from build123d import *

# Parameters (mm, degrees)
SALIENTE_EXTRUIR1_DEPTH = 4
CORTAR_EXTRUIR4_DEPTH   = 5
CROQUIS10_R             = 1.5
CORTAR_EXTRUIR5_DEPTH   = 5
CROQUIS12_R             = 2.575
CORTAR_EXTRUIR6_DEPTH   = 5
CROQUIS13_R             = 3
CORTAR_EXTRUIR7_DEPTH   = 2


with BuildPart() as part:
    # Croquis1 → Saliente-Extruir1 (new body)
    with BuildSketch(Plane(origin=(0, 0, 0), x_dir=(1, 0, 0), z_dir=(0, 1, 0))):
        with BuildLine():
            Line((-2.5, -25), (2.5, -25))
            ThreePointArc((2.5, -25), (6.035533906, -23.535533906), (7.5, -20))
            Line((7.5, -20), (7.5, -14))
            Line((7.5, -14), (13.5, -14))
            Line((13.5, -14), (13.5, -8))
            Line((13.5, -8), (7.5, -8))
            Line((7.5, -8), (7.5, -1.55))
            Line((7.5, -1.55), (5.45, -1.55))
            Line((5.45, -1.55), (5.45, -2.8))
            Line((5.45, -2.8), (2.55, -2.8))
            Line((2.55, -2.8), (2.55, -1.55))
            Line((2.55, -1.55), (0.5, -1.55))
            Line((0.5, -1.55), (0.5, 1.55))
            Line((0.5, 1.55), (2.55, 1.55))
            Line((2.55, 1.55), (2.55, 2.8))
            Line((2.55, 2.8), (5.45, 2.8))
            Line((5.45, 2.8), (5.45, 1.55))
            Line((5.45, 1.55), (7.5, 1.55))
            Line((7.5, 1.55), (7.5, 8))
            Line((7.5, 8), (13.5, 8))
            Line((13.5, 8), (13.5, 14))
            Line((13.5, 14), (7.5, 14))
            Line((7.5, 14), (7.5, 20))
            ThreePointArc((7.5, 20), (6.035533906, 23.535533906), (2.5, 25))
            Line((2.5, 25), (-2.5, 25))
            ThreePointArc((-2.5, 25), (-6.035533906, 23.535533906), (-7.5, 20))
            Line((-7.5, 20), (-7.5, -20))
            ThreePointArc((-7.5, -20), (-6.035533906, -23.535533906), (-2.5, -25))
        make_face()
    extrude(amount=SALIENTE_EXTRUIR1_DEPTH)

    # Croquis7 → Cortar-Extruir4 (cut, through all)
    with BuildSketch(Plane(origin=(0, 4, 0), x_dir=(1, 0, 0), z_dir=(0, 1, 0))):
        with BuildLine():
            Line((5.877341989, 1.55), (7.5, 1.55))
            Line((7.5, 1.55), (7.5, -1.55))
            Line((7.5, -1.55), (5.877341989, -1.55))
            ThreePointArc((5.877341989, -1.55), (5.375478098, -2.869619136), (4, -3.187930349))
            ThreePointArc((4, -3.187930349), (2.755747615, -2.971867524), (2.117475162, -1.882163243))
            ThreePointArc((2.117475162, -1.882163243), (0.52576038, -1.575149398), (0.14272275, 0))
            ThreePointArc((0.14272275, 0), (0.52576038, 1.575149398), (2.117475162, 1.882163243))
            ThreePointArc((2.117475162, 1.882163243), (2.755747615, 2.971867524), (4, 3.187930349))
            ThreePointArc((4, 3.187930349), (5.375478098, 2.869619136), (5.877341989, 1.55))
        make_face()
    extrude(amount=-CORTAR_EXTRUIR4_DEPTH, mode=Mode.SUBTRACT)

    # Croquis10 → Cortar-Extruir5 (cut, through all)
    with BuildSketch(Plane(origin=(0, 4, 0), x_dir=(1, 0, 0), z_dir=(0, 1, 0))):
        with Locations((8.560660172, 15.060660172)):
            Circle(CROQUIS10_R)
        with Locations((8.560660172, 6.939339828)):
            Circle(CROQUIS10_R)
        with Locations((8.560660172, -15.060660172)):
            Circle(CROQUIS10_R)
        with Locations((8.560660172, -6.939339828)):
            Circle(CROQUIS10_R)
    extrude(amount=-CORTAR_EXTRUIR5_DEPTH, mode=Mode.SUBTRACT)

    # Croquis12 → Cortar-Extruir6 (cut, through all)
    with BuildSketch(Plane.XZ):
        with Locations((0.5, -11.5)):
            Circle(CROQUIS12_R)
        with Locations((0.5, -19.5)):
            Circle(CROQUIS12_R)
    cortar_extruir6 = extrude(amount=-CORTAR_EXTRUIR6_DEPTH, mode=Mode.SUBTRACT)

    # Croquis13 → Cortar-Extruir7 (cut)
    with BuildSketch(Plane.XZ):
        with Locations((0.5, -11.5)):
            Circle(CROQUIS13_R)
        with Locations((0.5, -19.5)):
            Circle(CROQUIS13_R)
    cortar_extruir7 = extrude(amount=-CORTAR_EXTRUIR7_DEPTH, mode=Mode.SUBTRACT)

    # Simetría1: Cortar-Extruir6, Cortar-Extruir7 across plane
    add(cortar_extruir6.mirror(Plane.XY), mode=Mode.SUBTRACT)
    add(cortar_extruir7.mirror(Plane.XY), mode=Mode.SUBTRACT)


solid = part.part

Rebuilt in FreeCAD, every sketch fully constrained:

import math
import FreeCAD as App
import Part
import Sketcher

doc = App.newDocument("Part")
params = doc.addObject("Spreadsheet::Sheet", "Params")
for row, (alias, value) in enumerate([
    ("sketch1_radius", "5 mm"),
    ("sketch1_width", "5 mm"),
    ("sketch1_width2", "6 mm"),
    ("sketch1_height", "40 mm"),
    ("sketch1_width3", "2.9 mm"),
    ("pad1_length", "4 mm"),
    ("sketch2_radius", "1.5 mm"),
    ("sketch2_height", "3.1 mm"),
    ("sketch3_diameter", "3 mm"),
    ("sketch4_diameter", "5.15 mm"),
    ("sketch5_diameter", "6 mm"),
    ("pocket4_length", "2 mm"),
], start=1):
    params.set(f"A{row}", alias)
    params.set(f"B{row}", "=" + value)
    params.setAlias(f"B{row}", alias)

body = doc.addObject("PartDesign::Body", "Body")

# Sketch on XZ plane
sketch1 = body.newObject("Sketcher::SketchObject", "Sketch")
sketch1.AttachmentSupport = (doc.getObject("XZ_Plane"), [""])
sketch1.MapMode = "FlatFace"
sketch1.addGeometry(Part.LineSegment(App.Vector(-2.5, 25, 0), App.Vector(2.5, 25, 0)), False)
sketch1.addGeometry(Part.ArcOfCircle(Part.Circle(App.Vector(2.5, 20, 0), App.Vector(0, 0, 1), 5), math.radians(0), math.radians(90)), False)
sketch1.addGeometry(Part.LineSegment(App.Vector(7.5, 20, 0), App.Vector(7.5, 14, 0)), False)
sketch1.addGeometry(Part.LineSegment(App.Vector(7.5, 14, 0), App.Vector(13.5, 14, 0)), False)
sketch1.addGeometry(Part.LineSegment(App.Vector(13.5, 14, 0), App.Vector(13.5, 8, 0)), False)
sketch1.addGeometry(Part.LineSegment(App.Vector(13.5, 8, 0), App.Vector(7.5, 8, 0)), False)
sketch1.addGeometry(Part.LineSegment(App.Vector(7.5, 8, 0), App.Vector(7.5, 1.55, 0)), False)
sketch1.addGeometry(Part.LineSegment(App.Vector(7.5, 1.55, 0), App.Vector(5.45, 1.55, 0)), False)
sketch1.addGeometry(Part.LineSegment(App.Vector(5.45, 1.55, 0), App.Vector(5.45, 2.8, 0)), False)
sketch1.addGeometry(Part.LineSegment(App.Vector(5.45, 2.8, 0), App.Vector(2.55, 2.8, 0)), False)
sketch1.addGeometry(Part.LineSegment(App.Vector(2.55, 2.8, 0), App.Vector(2.55, 1.55, 0)), False)
sketch1.addGeometry(Part.LineSegment(App.Vector(2.55, 1.55, 0), App.Vector(0.5, 1.55, 0)), False)
sketch1.addGeometry(Part.LineSegment(App.Vector(0.5, 1.55, 0), App.Vector(0.5, -1.55, 0)), False)
sketch1.addGeometry(Part.LineSegment(App.Vector(0.5, -1.55, 0), App.Vector(2.55, -1.55, 0)), False)
sketch1.addGeometry(Part.LineSegment(App.Vector(2.55, -1.55, 0), App.Vector(2.55, -2.8, 0)), False)
sketch1.addGeometry(Part.LineSegment(App.Vector(2.55, -2.8, 0), App.Vector(5.45, -2.8, 0)), False)
sketch1.addGeometry(Part.LineSegment(App.Vector(5.45, -2.8, 0), App.Vector(5.45, -1.55, 0)), False)
sketch1.addGeometry(Part.LineSegment(App.Vector(5.45, -1.55, 0), App.Vector(7.5, -1.55, 0)), False)
sketch1.addGeometry(Part.LineSegment(App.Vector(7.5, -1.55, 0), App.Vector(7.5, -8, 0)), False)
sketch1.addGeometry(Part.LineSegment(App.Vector(7.5, -8, 0), App.Vector(13.5, -8, 0)), False)
sketch1.addGeometry(Part.LineSegment(App.Vector(13.5, -8, 0), App.Vector(13.5, -14, 0)), False)
sketch1.addGeometry(Part.LineSegment(App.Vector(13.5, -14, 0), App.Vector(7.5, -14, 0)), False)
sketch1.addGeometry(Part.LineSegment(App.Vector(7.5, -14, 0), App.Vector(7.5, -20, 0)), False)
sketch1.addGeometry(Part.ArcOfCircle(Part.Circle(App.Vector(2.5, -20, 0), App.Vector(0, 0, 1), 5), math.radians(-90), math.radians(0)), False)
sketch1.addGeometry(Part.LineSegment(App.Vector(2.5, -25, 0), App.Vector(-2.5, -25, 0)), False)
sketch1.addGeometry(Part.ArcOfCircle(Part.Circle(App.Vector(-2.5, -20, 0), App.Vector(0, 0, 1), 5), math.radians(180), math.radians(270)), False)
sketch1.addGeometry(Part.LineSegment(App.Vector(-7.5, -20, 0), App.Vector(-7.5, 20, 0)), False)
sketch1.addGeometry(Part.ArcOfCircle(Part.Circle(App.Vector(-2.5, 20, 0), App.Vector(0, 0, 1), 5), math.radians(90), math.radians(180)), False)
sketch1.addConstraint(Sketcher.Constraint("Tangent", 0, 2, 1, 2))
sketch1.addConstraint(Sketcher.Constraint("Tangent", 1, 1, 2, 1))
sketch1.addConstraint(Sketcher.Constraint("Coincident", 2, 2, 3, 1))
sketch1.addConstraint(Sketcher.Constraint("Coincident", 3, 2, 4, 1))
sketch1.addConstraint(Sketcher.Constraint("Coincident", 4, 2, 5, 1))
sketch1.addConstraint(Sketcher.Constraint("Coincident", 5, 2, 6, 1))
sketch1.addConstraint(Sketcher.Constraint("Coincident", 6, 2, 7, 1))
sketch1.addConstraint(Sketcher.Constraint("Coincident", 7, 2, 8, 1))
sketch1.addConstraint(Sketcher.Constraint("Coincident", 8, 2, 9, 1))
sketch1.addConstraint(Sketcher.Constraint("Coincident", 9, 2, 10, 1))
sketch1.addConstraint(Sketcher.Constraint("Coincident", 10, 2, 11, 1))
sketch1.addConstraint(Sketcher.Constraint("Coincident", 11, 2, 12, 1))
sketch1.addConstraint(Sketcher.Constraint("Coincident", 12, 2, 13, 1))
sketch1.addConstraint(Sketcher.Constraint("Coincident", 13, 2, 14, 1))
sketch1.addConstraint(Sketcher.Constraint("Coincident", 14, 2, 15, 1))
sketch1.addConstraint(Sketcher.Constraint("Coincident", 15, 2, 16, 1))
sketch1.addConstraint(Sketcher.Constraint("Coincident", 16, 2, 17, 1))
sketch1.addConstraint(Sketcher.Constraint("Coincident", 17, 2, 18, 1))
sketch1.addConstraint(Sketcher.Constraint("Coincident", 18, 2, 19, 1))
sketch1.addConstraint(Sketcher.Constraint("Coincident", 19, 2, 20, 1))
sketch1.addConstraint(Sketcher.Constraint("Coincident", 20, 2, 21, 1))
sketch1.addConstraint(Sketcher.Constraint("Coincident", 21, 2, 22, 1))
sketch1.addConstraint(Sketcher.Constraint("Tangent", 22, 2, 23, 2))
sketch1.addConstraint(Sketcher.Constraint("Tangent", 23, 1, 24, 1))
sketch1.addConstraint(Sketcher.Constraint("Tangent", 24, 2, 25, 2))
sketch1.addConstraint(Sketcher.Constraint("Tangent", 25, 1, 26, 1))
sketch1.addConstraint(Sketcher.Constraint("Tangent", 26, 2, 27, 2))
sketch1.addConstraint(Sketcher.Constraint("Tangent", 27, 1, 0, 1))
sketch1.addConstraint(Sketcher.Constraint("Horizontal", 0))
sketch1.addConstraint(Sketcher.Constraint("Vertical", 2))
sketch1.addConstraint(Sketcher.Constraint("Horizontal", 3))
sketch1.addConstraint(Sketcher.Constraint("Vertical", 4))
sketch1.addConstraint(Sketcher.Constraint("Horizontal", 5))
sketch1.addConstraint(Sketcher.Constraint("Vertical", 6))
sketch1.addConstraint(Sketcher.Constraint("Horizontal", 7))
sketch1.addConstraint(Sketcher.Constraint("Vertical", 8))
sketch1.addConstraint(Sketcher.Constraint("Horizontal", 9))
sketch1.addConstraint(Sketcher.Constraint("Vertical", 10))
sketch1.addConstraint(Sketcher.Constraint("Horizontal", 11))
sketch1.addConstraint(Sketcher.Constraint("Vertical", 12))
sketch1.addConstraint(Sketcher.Constraint("Horizontal", 13))
sketch1.addConstraint(Sketcher.Constraint("Vertical", 14))
sketch1.addConstraint(Sketcher.Constraint("Horizontal", 15))
sketch1.addConstraint(Sketcher.Constraint("Vertical", 16))
sketch1.addConstraint(Sketcher.Constraint("Horizontal", 17))
sketch1.addConstraint(Sketcher.Constraint("Vertical", 18))
sketch1.addConstraint(Sketcher.Constraint("Horizontal", 19))
sketch1.addConstraint(Sketcher.Constraint("Vertical", 20))
sketch1.addConstraint(Sketcher.Constraint("Horizontal", 21))
sketch1.addConstraint(Sketcher.Constraint("Vertical", 22))
sketch1.addConstraint(Sketcher.Constraint("Horizontal", 24))
sketch1.addConstraint(Sketcher.Constraint("Vertical", 26))
sketch1.addConstraint(Sketcher.Constraint("Equal", 1, 23))
sketch1.addConstraint(Sketcher.Constraint("Equal", 23, 25))
sketch1.addConstraint(Sketcher.Constraint("Equal", 25, 27))
sketch1.addConstraint(Sketcher.Constraint("Symmetric", 1, 3, 25, 3, -1, 1))
sketch1.addConstraint(Sketcher.Constraint("Symmetric", 10, 2, 13, 2, -1))
sketch1.addConstraint(Sketcher.Constraint("Symmetric", 8, 2, 15, 2, -1))
sketch1.addConstraint(Sketcher.Constraint("Symmetric", 6, 2, 17, 2, -1))
sketch1.addConstraint(Sketcher.Constraint("Symmetric", 4, 2, 19, 2, -1))
sketch1.addConstraint(Sketcher.Constraint("Symmetric", 2, 2, 21, 2, -1))
sketch1.addConstraint(Sketcher.Constraint("Horizontal", 7, 2, 10, 2))
sketch1.addConstraint(Sketcher.Constraint("Vertical", 2, 2, 5, 2))
sketch1.addConstraint(Sketcher.Constraint("Equal", 7, 11))
sketch1.addConstraint(Sketcher.Constraint("Equal", 21, 2))
sketch1.addConstraint(Sketcher.Constraint("Equal", 2, 4))
sketch1.addConstraint(Sketcher.Constraint("Radius", 1, 5.0))
sketch1.addConstraint(Sketcher.Constraint("DistanceX", 0, 1, 0, 2, 5.0))
sketch1.addConstraint(Sketcher.Constraint("DistanceX", 3, 1, 3, 2, 6.0))
sketch1.addConstraint(Sketcher.Constraint("DistanceY", 26, 1, 26, 2, 40.0))
sketch1.addConstraint(Sketcher.Constraint("DistanceX", 9, 2, 9, 1, 2.9))
sketch1.addConstraint(Sketcher.Constraint("DistanceY", 12, 2, 12, 1, 3.1))
sketch1.addConstraint(Sketcher.Constraint("DistanceX", 11, 2, 6, 2, 7.0))
sketch1.addConstraint(Sketcher.Constraint("DistanceY", 8, 1, 8, 2, 1.25))
sketch1.setExpression("Constraints[66]", "Params.sketch1_radius")
sketch1.setExpression("Constraints[67]", "Params.sketch1_width")
sketch1.setExpression("Constraints[68]", "Params.sketch1_width2")
sketch1.setExpression("Constraints[69]", "Params.sketch1_height")
sketch1.setExpression("Constraints[70]", "Params.sketch1_width3")
pad1 = body.newObject("PartDesign::Pad", "Pad")
pad1.Profile = sketch1
pad1.setExpression("Length", "Params.pad1_length")
pad1.Reversed = True

# Sketch on XZ plane
sketch2 = body.newObject("Sketcher::SketchObject", "Sketch001")
sketch2.AttachmentSupport = (doc.getObject("XZ_Plane"), [""])
sketch2.MapMode = "FlatFace"
sketch2.AttachmentOffset = App.Placement(App.Vector(0, 0, -4), App.Rotation())
sketch2.addGeometry(Part.LineSegment(App.Vector(7.5, -1.55, 0), App.Vector(5.877342, -1.55, 0)), False)
sketch2.addGeometry(Part.ArcOfCircle(Part.Circle(App.Vector(4.38934, -1.73934, 0), App.Vector(0, 0, 1), 1.5), math.radians(-105.043949), math.radians(7.251593)), False)
sketch2.addGeometry(Part.ArcOfCircle(Part.Circle(App.Vector(3.61066, -1.73934, 0), App.Vector(0, 0, 1), 1.5), math.radians(-174.53627), math.radians(-74.956051)), False)
sketch2.addGeometry(Part.ArcOfCircle(Part.Circle(App.Vector(1.56066, -0.48934, 0), App.Vector(0, 0, 1), 1.5), math.radians(160.960098), math.radians(291.79026)), False)
sketch2.addGeometry(Part.ArcOfCircle(Part.Circle(App.Vector(1.56066, 0.48934, 0), App.Vector(0, 0, 1), 1.5), math.radians(68.20974), math.radians(199.039902)), False)
sketch2.addGeometry(Part.ArcOfCircle(Part.Circle(App.Vector(3.61066, 1.73934, 0), App.Vector(0, 0, 1), 1.5), math.radians(74.956051), math.radians(174.53627)), False)
sketch2.addGeometry(Part.ArcOfCircle(Part.Circle(App.Vector(4.38934, 1.73934, 0), App.Vector(0, 0, 1), 1.5), math.radians(-7.251593), math.radians(105.043949)), False)
sketch2.addGeometry(Part.LineSegment(App.Vector(5.877342, 1.55, 0), App.Vector(7.5, 1.55, 0)), False)
sketch2.addGeometry(Part.LineSegment(App.Vector(7.5, 1.55, 0), App.Vector(7.5, -1.55, 0)), False)
sketch2.addConstraint(Sketcher.Constraint("Coincident", 0, 2, 1, 2))
sketch2.addConstraint(Sketcher.Constraint("Coincident", 1, 1, 2, 2))
sketch2.addConstraint(Sketcher.Constraint("Coincident", 2, 1, 3, 2))
sketch2.addConstraint(Sketcher.Constraint("Coincident", 3, 1, 4, 2))
sketch2.addConstraint(Sketcher.Constraint("Coincident", 4, 1, 5, 2))
sketch2.addConstraint(Sketcher.Constraint("Coincident", 5, 1, 6, 2))
sketch2.addConstraint(Sketcher.Constraint("Coincident", 6, 1, 7, 1))
sketch2.addConstraint(Sketcher.Constraint("Coincident", 7, 2, 8, 1))
sketch2.addConstraint(Sketcher.Constraint("Coincident", 8, 2, 0, 1))
sketch2.addConstraint(Sketcher.Constraint("Horizontal", 0))
sketch2.addConstraint(Sketcher.Constraint("Horizontal", 7))
sketch2.addConstraint(Sketcher.Constraint("Vertical", 8))
sketch2.addConstraint(Sketcher.Constraint("Equal", 1, 2))
sketch2.addConstraint(Sketcher.Constraint("Equal", 2, 3))
sketch2.addConstraint(Sketcher.Constraint("Equal", 3, 4))
sketch2.addConstraint(Sketcher.Constraint("Equal", 4, 5))
sketch2.addConstraint(Sketcher.Constraint("Equal", 5, 6))
sketch2.addConstraint(Sketcher.Constraint("Symmetric", 3, 3, 4, 3, -1))
sketch2.addConstraint(Sketcher.Constraint("Symmetric", 2, 3, 5, 3, -1))
sketch2.addConstraint(Sketcher.Constraint("Symmetric", 1, 3, 6, 3, -1))
sketch2.addConstraint(Sketcher.Constraint("Horizontal", 1, 3, 2, 3))
sketch2.addConstraint(Sketcher.Constraint("Vertical", 0, 2, 6, 1))
sketch2.addConstraint(Sketcher.Constraint("Radius", 1, 1.5))
sketch2.addConstraint(Sketcher.Constraint("DistanceY", 8, 2, 8, 1, 3.1))
sketch2.addConstraint(Sketcher.Constraint("DistanceX", -1, 1, 1, 1, 4.0))
sketch2.addConstraint(Sketcher.Constraint("DistanceX", -1, 1, 7, 2, 7.5))
sketch2.addConstraint(Sketcher.Constraint("DistanceX", 3, 3, 2, 3, 2.05))
sketch2.addConstraint(Sketcher.Constraint("DistanceY", 2, 3, 3, 3, 1.25))
sketch2.addConstraint(Sketcher.Constraint("DistanceX", 0, 2, 0, 1, 1.622658))
sketch2.addConstraint(Sketcher.Constraint("DistanceX", -1, 1, 1, 3, 4.38934))
sketch2.setExpression("Constraints[22]", "Params.sketch2_radius")
sketch2.setExpression("Constraints[23]", "Params.sketch2_height")
pocket1 = body.newObject("PartDesign::Pocket", "Pocket")
pocket1.Profile = sketch2
pocket1.Type = "ThroughAll"
pocket1.Reversed = True

# Sketch on XZ plane
sketch3 = body.newObject("Sketcher::SketchObject", "Sketch002")
sketch3.AttachmentSupport = (doc.getObject("XZ_Plane"), [""])
sketch3.MapMode = "FlatFace"
sketch3.AttachmentOffset = App.Placement(App.Vector(0, 0, -4), App.Rotation())
sketch3.addGeometry(Part.Circle(App.Vector(8.56066, -15.06066, 0), App.Vector(0, 0, 1), 1.5), False)
sketch3.addGeometry(Part.Circle(App.Vector(8.56066, -6.93934, 0), App.Vector(0, 0, 1), 1.5), False)
sketch3.addGeometry(Part.Circle(App.Vector(8.56066, 15.06066, 0), App.Vector(0, 0, 1), 1.5), False)
sketch3.addGeometry(Part.Circle(App.Vector(8.56066, 6.93934, 0), App.Vector(0, 0, 1), 1.5), False)
sketch3.addConstraint(Sketcher.Constraint("Equal", 0, 1))
sketch3.addConstraint(Sketcher.Constraint("Equal", 1, 2))
sketch3.addConstraint(Sketcher.Constraint("Equal", 2, 3))
sketch3.addConstraint(Sketcher.Constraint("Symmetric", 0, 3, 2, 3, -1))
sketch3.addConstraint(Sketcher.Constraint("Symmetric", 1, 3, 3, 3, -1))
sketch3.addConstraint(Sketcher.Constraint("Vertical", 0, 3, 1, 3))
sketch3.addConstraint(Sketcher.Constraint("Diameter", 0, 3.0))
sketch3.addConstraint(Sketcher.Constraint("DistanceY", 1, 3, 2, 3, 22.0))
sketch3.addConstraint(Sketcher.Constraint("DistanceX", -1, 1, 0, 3, 8.56066))
sketch3.addConstraint(Sketcher.Constraint("DistanceY", 0, 3, -1, 1, 15.06066))
sketch3.setExpression("Constraints[6]", "Params.sketch3_diameter")
pocket2 = body.newObject("PartDesign::Pocket", "Pocket001")
pocket2.Profile = sketch3
pocket2.Type = "ThroughAll"
pocket2.Reversed = True

# Sketch on XZ plane
sketch4 = body.newObject("Sketcher::SketchObject", "Sketch003")
sketch4.AttachmentSupport = (doc.getObject("XZ_Plane"), [""])
sketch4.MapMode = "FlatFace"
sketch4.addGeometry(Part.Circle(App.Vector(0.5, -11.5, 0), App.Vector(0, 0, 1), 2.575), False)
sketch4.addGeometry(Part.Circle(App.Vector(0.5, -19.5, 0), App.Vector(0, 0, 1), 2.575), False)
sketch4.addConstraint(Sketcher.Constraint("Equal", 0, 1))
sketch4.addConstraint(Sketcher.Constraint("Vertical", 0, 3, 1, 3))
sketch4.addConstraint(Sketcher.Constraint("Diameter", 0, 5.15))
sketch4.addConstraint(Sketcher.Constraint("DistanceY", 1, 3, 0, 3, 8.0))
sketch4.addConstraint(Sketcher.Constraint("DistanceX", -1, 1, 0, 3, 0.5))
sketch4.addConstraint(Sketcher.Constraint("DistanceY", 0, 3, -1, 1, 11.5))
sketch4.setExpression("Constraints[2]", "Params.sketch4_diameter")
pocket3 = body.newObject("PartDesign::Pocket", "Pocket002")
pocket3.Profile = sketch4
pocket3.Type = "ThroughAll"

# Sketch on XZ plane
sketch5 = body.newObject("Sketcher::SketchObject", "Sketch004")
sketch5.AttachmentSupport = (doc.getObject("XZ_Plane"), [""])
sketch5.MapMode = "FlatFace"
sketch5.addGeometry(Part.Circle(App.Vector(0.5, -11.5, 0), App.Vector(0, 0, 1), 3), False)
sketch5.addGeometry(Part.Circle(App.Vector(0.5, -19.5, 0), App.Vector(0, 0, 1), 3), False)
sketch5.addConstraint(Sketcher.Constraint("Equal", 0, 1))
sketch5.addConstraint(Sketcher.Constraint("Vertical", 0, 3, 1, 3))
sketch5.addConstraint(Sketcher.Constraint("Diameter", 0, 6.0))
sketch5.addConstraint(Sketcher.Constraint("DistanceY", 1, 3, 0, 3, 8.0))
sketch5.addConstraint(Sketcher.Constraint("DistanceX", -1, 1, 0, 3, 0.5))
sketch5.addConstraint(Sketcher.Constraint("DistanceY", 0, 3, -1, 1, 11.5))
sketch5.setExpression("Constraints[2]", "Params.sketch5_diameter")
pocket4 = body.newObject("PartDesign::Pocket", "Pocket003")
pocket4.Profile = sketch5
pocket4.setExpression("Length", "Params.pocket4_length")
doc.recompute()

mirrored = body.newObject("PartDesign::Mirrored", "Mirrored")
mirrored.Originals = [pocket3, pocket4]
mirrored.MirrorPlane = (doc.getObject("XY_Plane"), [""])
body.Tip = mirrored

doc.recompute()
